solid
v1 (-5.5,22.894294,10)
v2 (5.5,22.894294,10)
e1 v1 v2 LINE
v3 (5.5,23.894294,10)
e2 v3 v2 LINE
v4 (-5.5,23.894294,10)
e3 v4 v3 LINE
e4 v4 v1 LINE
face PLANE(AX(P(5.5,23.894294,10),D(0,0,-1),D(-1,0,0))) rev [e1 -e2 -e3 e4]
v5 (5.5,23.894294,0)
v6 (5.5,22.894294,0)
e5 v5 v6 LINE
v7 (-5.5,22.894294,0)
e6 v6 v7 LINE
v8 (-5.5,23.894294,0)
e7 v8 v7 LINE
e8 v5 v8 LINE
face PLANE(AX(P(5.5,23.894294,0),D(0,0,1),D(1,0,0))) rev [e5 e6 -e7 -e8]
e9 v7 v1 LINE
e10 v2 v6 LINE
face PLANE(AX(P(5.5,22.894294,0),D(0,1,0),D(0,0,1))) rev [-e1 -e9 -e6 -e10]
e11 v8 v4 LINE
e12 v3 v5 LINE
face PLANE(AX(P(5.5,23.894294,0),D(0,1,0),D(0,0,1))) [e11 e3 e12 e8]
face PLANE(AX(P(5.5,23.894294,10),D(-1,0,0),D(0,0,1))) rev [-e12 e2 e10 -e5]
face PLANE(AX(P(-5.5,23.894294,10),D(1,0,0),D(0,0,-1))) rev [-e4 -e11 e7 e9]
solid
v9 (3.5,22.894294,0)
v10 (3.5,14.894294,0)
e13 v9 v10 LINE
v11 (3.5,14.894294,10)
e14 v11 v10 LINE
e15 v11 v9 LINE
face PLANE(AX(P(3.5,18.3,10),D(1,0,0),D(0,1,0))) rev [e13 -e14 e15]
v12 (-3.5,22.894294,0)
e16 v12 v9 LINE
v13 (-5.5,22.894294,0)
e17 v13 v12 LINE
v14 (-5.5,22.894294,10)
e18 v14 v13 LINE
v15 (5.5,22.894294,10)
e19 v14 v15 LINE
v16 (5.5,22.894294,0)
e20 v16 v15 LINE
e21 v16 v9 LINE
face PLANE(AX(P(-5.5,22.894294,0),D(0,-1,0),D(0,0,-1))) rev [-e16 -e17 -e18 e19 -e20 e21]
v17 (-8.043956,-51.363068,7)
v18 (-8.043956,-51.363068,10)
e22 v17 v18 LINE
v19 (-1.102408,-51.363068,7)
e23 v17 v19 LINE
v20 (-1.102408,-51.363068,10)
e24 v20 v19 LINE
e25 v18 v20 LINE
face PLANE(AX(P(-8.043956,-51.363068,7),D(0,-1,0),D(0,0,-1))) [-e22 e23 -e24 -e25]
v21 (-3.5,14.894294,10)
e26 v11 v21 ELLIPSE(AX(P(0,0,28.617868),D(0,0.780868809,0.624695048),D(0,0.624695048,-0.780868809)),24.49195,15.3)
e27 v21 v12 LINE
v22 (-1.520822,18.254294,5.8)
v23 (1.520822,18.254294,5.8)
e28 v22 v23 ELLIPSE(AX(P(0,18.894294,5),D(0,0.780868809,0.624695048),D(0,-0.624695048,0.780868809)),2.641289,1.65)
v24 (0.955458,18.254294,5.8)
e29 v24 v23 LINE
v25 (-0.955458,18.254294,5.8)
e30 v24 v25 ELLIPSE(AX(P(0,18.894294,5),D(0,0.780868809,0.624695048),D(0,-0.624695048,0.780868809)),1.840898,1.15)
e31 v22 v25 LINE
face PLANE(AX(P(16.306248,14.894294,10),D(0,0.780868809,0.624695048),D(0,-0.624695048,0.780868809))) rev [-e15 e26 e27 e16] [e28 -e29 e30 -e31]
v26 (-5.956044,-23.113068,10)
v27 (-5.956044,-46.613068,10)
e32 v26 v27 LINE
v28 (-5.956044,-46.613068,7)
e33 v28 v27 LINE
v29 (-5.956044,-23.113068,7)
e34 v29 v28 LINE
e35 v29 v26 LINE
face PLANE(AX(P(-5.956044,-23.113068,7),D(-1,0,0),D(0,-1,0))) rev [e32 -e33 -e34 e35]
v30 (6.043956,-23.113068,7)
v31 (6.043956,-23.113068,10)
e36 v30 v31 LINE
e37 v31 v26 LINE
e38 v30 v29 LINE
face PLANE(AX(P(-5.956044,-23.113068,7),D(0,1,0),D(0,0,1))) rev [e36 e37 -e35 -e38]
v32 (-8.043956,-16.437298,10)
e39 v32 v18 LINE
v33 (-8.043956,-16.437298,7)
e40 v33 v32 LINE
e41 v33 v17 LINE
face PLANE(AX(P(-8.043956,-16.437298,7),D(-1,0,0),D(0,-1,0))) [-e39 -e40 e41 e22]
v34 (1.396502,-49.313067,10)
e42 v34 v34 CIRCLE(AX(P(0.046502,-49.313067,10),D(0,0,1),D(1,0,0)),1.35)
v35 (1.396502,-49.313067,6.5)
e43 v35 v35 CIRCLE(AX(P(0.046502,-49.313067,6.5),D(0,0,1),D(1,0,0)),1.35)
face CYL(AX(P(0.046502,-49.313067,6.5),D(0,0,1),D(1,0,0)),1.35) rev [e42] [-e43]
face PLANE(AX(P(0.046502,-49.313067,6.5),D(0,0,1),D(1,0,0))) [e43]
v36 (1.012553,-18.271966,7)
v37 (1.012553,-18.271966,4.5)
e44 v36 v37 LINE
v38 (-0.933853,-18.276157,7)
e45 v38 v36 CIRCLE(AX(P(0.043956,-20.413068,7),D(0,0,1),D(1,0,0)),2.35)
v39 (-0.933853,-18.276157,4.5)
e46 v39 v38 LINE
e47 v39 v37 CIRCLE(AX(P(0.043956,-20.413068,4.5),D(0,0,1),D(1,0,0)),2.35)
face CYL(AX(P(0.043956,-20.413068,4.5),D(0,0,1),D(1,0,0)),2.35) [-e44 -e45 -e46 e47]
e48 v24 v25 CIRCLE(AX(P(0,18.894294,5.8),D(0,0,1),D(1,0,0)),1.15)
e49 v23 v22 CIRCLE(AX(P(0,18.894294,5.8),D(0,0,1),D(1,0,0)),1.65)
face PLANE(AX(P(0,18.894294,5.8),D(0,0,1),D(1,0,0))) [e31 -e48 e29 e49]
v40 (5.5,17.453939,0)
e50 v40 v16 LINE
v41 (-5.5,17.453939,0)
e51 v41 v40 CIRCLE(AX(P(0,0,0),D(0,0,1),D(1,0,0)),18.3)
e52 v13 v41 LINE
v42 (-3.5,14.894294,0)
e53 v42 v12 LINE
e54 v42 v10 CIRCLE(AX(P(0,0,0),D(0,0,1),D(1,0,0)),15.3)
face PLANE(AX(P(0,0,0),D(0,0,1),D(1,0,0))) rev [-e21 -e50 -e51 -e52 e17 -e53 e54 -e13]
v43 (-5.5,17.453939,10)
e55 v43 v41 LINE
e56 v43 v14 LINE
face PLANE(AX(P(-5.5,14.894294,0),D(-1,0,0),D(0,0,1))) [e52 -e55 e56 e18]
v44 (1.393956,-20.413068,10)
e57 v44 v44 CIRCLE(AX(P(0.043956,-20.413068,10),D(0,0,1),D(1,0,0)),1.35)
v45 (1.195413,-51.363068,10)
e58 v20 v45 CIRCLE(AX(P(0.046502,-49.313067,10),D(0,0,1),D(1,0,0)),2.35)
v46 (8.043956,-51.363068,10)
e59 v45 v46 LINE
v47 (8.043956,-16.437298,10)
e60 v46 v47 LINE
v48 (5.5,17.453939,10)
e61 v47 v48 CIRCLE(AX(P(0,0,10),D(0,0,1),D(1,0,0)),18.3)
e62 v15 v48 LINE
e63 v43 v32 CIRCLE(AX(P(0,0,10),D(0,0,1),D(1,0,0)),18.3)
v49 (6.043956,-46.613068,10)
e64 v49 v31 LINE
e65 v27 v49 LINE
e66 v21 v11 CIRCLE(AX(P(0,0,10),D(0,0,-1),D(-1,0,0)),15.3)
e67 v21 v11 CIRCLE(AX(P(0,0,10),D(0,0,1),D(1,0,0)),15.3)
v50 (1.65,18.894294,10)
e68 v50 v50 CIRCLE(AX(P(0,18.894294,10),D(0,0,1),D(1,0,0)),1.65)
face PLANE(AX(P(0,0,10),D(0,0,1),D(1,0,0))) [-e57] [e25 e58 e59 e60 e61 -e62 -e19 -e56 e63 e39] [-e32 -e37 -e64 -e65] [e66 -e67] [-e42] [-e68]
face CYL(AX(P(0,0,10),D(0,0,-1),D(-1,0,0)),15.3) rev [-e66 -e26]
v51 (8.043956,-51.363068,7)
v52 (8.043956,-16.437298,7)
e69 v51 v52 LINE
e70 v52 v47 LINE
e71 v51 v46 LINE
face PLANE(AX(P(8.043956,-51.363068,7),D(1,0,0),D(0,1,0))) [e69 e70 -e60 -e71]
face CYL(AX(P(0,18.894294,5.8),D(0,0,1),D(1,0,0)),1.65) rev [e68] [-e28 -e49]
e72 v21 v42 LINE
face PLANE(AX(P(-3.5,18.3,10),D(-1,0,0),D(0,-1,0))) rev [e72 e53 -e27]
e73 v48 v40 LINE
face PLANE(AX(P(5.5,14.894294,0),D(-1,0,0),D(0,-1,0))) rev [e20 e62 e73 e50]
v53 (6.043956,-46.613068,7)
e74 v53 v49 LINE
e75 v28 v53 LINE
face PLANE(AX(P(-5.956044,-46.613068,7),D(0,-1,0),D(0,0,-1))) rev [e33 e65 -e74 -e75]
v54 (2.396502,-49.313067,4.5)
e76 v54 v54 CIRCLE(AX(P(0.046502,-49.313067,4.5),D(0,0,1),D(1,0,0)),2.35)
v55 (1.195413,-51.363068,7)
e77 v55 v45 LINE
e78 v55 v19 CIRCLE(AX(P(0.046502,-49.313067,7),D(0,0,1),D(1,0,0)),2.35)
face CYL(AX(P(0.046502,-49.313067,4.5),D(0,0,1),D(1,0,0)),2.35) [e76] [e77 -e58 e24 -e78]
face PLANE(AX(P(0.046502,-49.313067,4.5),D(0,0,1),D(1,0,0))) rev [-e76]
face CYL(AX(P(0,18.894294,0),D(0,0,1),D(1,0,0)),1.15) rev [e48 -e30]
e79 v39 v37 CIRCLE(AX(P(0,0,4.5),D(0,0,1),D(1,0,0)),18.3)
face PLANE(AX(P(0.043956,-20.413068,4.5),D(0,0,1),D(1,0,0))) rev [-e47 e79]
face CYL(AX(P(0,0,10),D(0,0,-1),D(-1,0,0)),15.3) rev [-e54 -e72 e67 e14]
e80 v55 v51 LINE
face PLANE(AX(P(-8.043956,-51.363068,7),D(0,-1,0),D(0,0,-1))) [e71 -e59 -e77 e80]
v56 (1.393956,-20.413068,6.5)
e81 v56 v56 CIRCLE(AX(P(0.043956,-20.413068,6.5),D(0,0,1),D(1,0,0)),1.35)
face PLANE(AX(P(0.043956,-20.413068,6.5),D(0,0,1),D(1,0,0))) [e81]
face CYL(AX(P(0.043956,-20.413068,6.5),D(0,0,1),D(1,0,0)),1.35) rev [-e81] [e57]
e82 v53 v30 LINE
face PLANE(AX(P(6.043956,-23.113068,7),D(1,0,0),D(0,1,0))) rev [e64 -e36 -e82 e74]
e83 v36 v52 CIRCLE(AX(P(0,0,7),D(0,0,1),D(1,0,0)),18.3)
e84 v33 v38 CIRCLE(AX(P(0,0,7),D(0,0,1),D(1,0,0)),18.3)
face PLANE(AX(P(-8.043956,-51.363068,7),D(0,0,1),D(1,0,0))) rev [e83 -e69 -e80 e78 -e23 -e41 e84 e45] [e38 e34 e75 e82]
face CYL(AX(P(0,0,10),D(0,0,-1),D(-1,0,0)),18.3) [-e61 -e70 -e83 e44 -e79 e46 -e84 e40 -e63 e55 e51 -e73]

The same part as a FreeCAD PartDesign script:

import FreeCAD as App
import Part
import Sketcher

V = App.Vector
Q = App.Units.Quantity


def add_polygon(sketch, points):
    """Adds a closed chain of lines whose ends are joined by coincident constraints."""
    first, n = sketch.GeometryCount, len(points)
    for a, b in zip(points, points[1:] + points[:1]):
        sketch.addGeometry(Part.LineSegment(App.Vector(*a, 0), App.Vector(*b, 0)), False)
    for i in range(n):
        sketch.addConstraint(Sketcher.Constraint("Coincident", first + i, 2, first + (i + 1) % n, 1))

doc = App.newDocument("Part")
params = doc.addObject("Spreadsheet::Sheet", "Params")
for row, (alias, value) in enumerate([
    ("sketch1_diameter", "36.6 mm"),
    ("sketch1_diameter2", "30.6 mm"),
    ("pad1_length", "10 mm"),
    ("sketch2_width", "12 mm"),
    ("sketch2_height", "23.5 mm"),
    ("pad2_length", "3 mm"),
    ("sketch3_width", "7 mm"),
    ("sketch4_width", "7 mm"),
    ("sketch4_height", "8 mm"),
    ("pad3_length", "10 mm"),
    ("sketch5_width", "8 mm"),
    ("sketch5_height", "10 mm"),
    ("pocket2_length", "7 mm"),
    ("sketch6_width", "8 mm"),
    ("sketch6_height", "10 mm"),
    ("pad4_length", "2 mm"),
    ("sketch7_width", "8 mm"),
    ("sketch7_height", "10 mm"),
    ("pad5_length", "2 mm"),
    ("sketch8_diameter", "3.3 mm"),
    ("pocket3_length", "4.2 mm"),
    ("sketch9_diameter", "2.3 mm"),
    ("sketch10_diameter", "30.6 mm"),
    ("sketch11_diameter", "4.7 mm"),
    ("pad6_length", "5.5 mm"),
    ("sketch12_diameter", "2.7 mm"),
    ("pocket6_length", "3.5 mm"),
    ("sketch13_width", "11 mm"),
    ("sketch13_height", "10 mm"),
    ("pad7_length", "1 mm"),
], start=1):
    params.set(f"A{row}", alias)
    params.set(f"B{row}", "=" + value)
    params.setAlias(f"B{row}", alias)

body = doc.addObject("PartDesign::Body", "Body")

# Sketch on XY plane
sketch1 = body.newObject("Sketcher::SketchObject", "Sketch")
sketch1.AttachmentSupport = (doc.getObject("XY_Plane"), [""])
sketch1.MapMode = "FlatFace"
sketch1.addGeometry(Part.Circle(V(0, 0, 0), V(0, 0, 1), 18), False)
sketch1.addGeometry(Part.Circle(V(0, 0, 0), V(0, 0, 1), 15), False)
sketch1.addConstraint(Sketcher.Constraint("Coincident", 0, 3, -1, 1))
sketch1.addConstraint(Sketcher.Constraint("Coincident", 1, 3, -1, 1))
sketch1.addConstraint(Sketcher.Constraint("Diameter", 0, Q("36.6 mm")))
sketch1.addConstraint(Sketcher.Constraint("Diameter", 1, Q("30.6 mm")))
sketch1.setExpression("Constraints[2]", "Params.sketch1_diameter")
sketch1.setExpression("Constraints[3]", "Params.sketch1_diameter2")
pad1 = body.newObject("PartDesign::Pad", "Pad")
pad1.Profile = sketch1
pad1.setExpression("Length", "Params.pad1_length")

# Sketch on XY plane
sketch2 = body.newObject("Sketcher::SketchObject", "Sketch001")
sketch2.AttachmentSupport = (doc.getObject("XY_Plane"), [""])
sketch2.MapMode = "FlatFace"
sketch2.AttachmentOffset = App.Placement(V(0, 0, 10), App.Rotation())
add_polygon(sketch2, [(-8, -16), (-8, -51), (8, -51), (8, -16)])  # lines 0-3
add_polygon(sketch2, [(6, -47), (-6, -47), (-6, -23), (6, -23)])  # lines 4-7
sketch2.addConstraint(Sketcher.Constraint("Vertical", 0))
sketch2.addConstraint(Sketcher.Constraint("Horizontal", 1))
sketch2.addConstraint(Sketcher.Constraint("Vertical", 2))
sketch2.addConstraint(Sketcher.Constraint("Horizontal", 3))
sketch2.addConstraint(Sketcher.Constraint("Horizontal", 4))
sketch2.addConstraint(Sketcher.Constraint("Vertical", 5))
sketch2.addConstraint(Sketcher.Constraint("Horizontal", 6))
sketch2.addConstraint(Sketcher.Constraint("Vertical", 7))
sketch2.addConstraint(Sketcher.Constraint("DistanceX", 4, 2, 4, 1, Q("12 mm")))
sketch2.addConstraint(Sketcher.Constraint("DistanceY", 5, 1, 5, 2, Q("23.5 mm")))
sketch2.addConstraint(Sketcher.Constraint("DistanceX", 4, 2, 1, 2, Q("14 mm")))
sketch2.addConstraint(Sketcher.Constraint("DistanceY", 0, 2, 4, 2, Q("4.75 mm")))
sketch2.addConstraint(Sketcher.Constraint("DistanceY", 0, 2, 0, 1, Q("34.92577 mm")))
sketch2.addConstraint(Sketcher.Constraint("DistanceY", 2, 2, -1, 1, Q("16.437298 mm")))
sketch2.addConstraint(Sketcher.Constraint("DistanceX", 1, 1, 1, 2, Q("16.087912 mm")))
sketch2.addConstraint(Sketcher.Constraint("DistanceX", 0, 2, -1, 1, Q("8.043956 mm")))
sketch2.setExpression("Constraints[16]", "Params.sketch2_width")
sketch2.setExpression("Constraints[17]", "Params.sketch2_height")
pad2 = body.newObject("PartDesign::Pad", "Pad001")
pad2.Profile = sketch2
pad2.setExpression("Length", "Params.pad2_length")
pad2.Reversed = True

# Sketch on XY plane
sketch3 = body.newObject("Sketcher::SketchObject", "Sketch002")
sketch3.AttachmentSupport = (doc.getObject("XY_Plane"), [""])
sketch3.MapMode = "FlatFace"
add_polygon(sketch3, [(3.5, 18.3), (3.5, 14.9), (-3.5, 14.9), (-3.5, 18.3)])  # lines 0-3
sketch3.addConstraint(Sketcher.Constraint("Vertical", 0))
sketch3.addConstraint(Sketcher.Constraint("Horizontal", 1))
sketch3.addConstraint(Sketcher.Constraint("Vertical", 2))
sketch3.addConstraint(Sketcher.Constraint("Horizontal", 3))
sketch3.addConstraint(Sketcher.Constraint("DistanceX", 1, 2, 1, 1, Q("7 mm")))
sketch3.addConstraint(Sketcher.Constraint("DistanceX", -1, 1, 0, 2, Q("3.5 mm")))
sketch3.addConstraint(Sketcher.Constraint("DistanceY", -1, 1, 2, 2, Q("18.3 mm")))
sketch3.addConstraint(Sketcher.Constraint("DistanceY", 0, 2, 0, 1, Q("3.405706 mm")))
sketch3.setExpression("Constraints[8]", "Params.sketch3_width")
pocket1 = body.newObject("PartDesign::Pocket", "Pocket")
pocket1.Profile = sketch3
pocket1.Type = "ThroughAll"
pocket1.Reversed = True
body2 = doc.addObject("PartDesign::Body", "Body001")

# Sketch on XY plane
sketch4 = body2.newObject("Sketcher::SketchObject", "Sketch003")
sketch4.AttachmentSupport = (doc.getObject("XY_Plane001"), [""])
sketch4.MapMode = "FlatFace"
add_polygon(sketch4, [(4, 23), (4, 15), (-4, 15), (-4, 23)])  # lines 0-3
sketch4.addConstraint(Sketcher.Constraint("Vertical", 0))
sketch4.addConstraint(Sketcher.Constraint("Horizontal", 1))
sketch4.addConstraint(Sketcher.Constraint("Vertical", 2))
sketch4.addConstraint(Sketcher.Constraint("Horizontal", 3))
sketch4.addConstraint(Sketcher.Constraint("DistanceX", 1, 2, 1, 1, Q("7 mm")))
sketch4.addConstraint(Sketcher.Constraint("DistanceY", 0, 2, 0, 1, Q("8 mm")))
sketch4.addConstraint(Sketcher.Constraint("DistanceX", -1, 1, 0, 2, Q("3.5 mm")))
sketch4.addConstraint(Sketcher.Constraint("DistanceY", -1, 1, 0, 2, Q("14.894294 mm")))
sketch4.setExpression("Constraints[8]", "Params.sketch4_width")
sketch4.setExpression("Constraints[9]", "Params.sketch4_height")
pad3 = body2.newObject("PartDesign::Pad", "Pad002")
pad3.Profile = sketch4
pad3.setExpression("Length", "Params.pad3_length")

# Sketch on YZ plane
sketch5 = body2.newObject("Sketcher::SketchObject", "Sketch004")
sketch5.AttachmentSupport = (doc.getObject("YZ_Plane001"), [""])
sketch5.MapMode = "FlatFace"
sketch5.AttachmentOffset = App.Placement(V(0, 0, -3.5), App.Rotation())
add_polygon(sketch5, [(15, 10), (23, 0), (15, 0)])  # lines 0-2
sketch5.addConstraint(Sketcher.Constraint("Horizontal", 1))
sketch5.addConstraint(Sketcher.Constraint("Vertical", 2))
sketch5.addConstraint(Sketcher.Constraint("PointOnObject", 0, 2, -1))
sketch5.addConstraint(Sketcher.Constraint("DistanceX", 1, 2, 1, 1, Q("8 mm")))
sketch5.addConstraint(Sketcher.Constraint("DistanceY", 2, 1, 2, 2, Q("10 mm")))
sketch5.addConstraint(Sketcher.Constraint("DistanceX", -1, 1, 0, 2, Q("22.894294 mm")))
sketch5.setExpression("Constraints[6]", "Params.sketch5_width")
sketch5.setExpression("Constraints[7]", "Params.sketch5_height")
pocket2 = body2.newObject("PartDesign::Pocket", "Pocket001")
pocket2.Profile = sketch5
pocket2.setExpression("Length", "Params.pocket2_length")
pocket2.Reversed = True
doc.recompute()

boolean = body.newObject("PartDesign::Boolean", "Boolean")
boolean.Type = "Fuse"
boolean.addObjects([body2])

# Sketch on YZ plane
sketch6 = body.newObject("Sketcher::SketchObject", "Sketch005")
sketch6.AttachmentSupport = (doc.getObject("YZ_Plane"), [""])
sketch6.MapMode = "FlatFace"
sketch6.AttachmentOffset = App.Placement(V(0, 0, -3.5), App.Rotation())
add_polygon(sketch6, [(23, 0), (15, 0), (15, 10), (23, 10)])  # lines 0-3
sketch6.addConstraint(Sketcher.Constraint("Horizontal", 0))
sketch6.addConstraint(Sketcher.Constraint("Vertical", 1))
sketch6.addConstraint(Sketcher.Constraint("Horizontal", 2))
sketch6.addConstraint(Sketcher.Constraint("Vertical", 3))
sketch6.addConstraint(Sketcher.Constraint("PointOnObject", 0, 2, -1))
sketch6.addConstraint(Sketcher.Constraint("DistanceX", 0, 2, 0, 1, Q("8 mm")))
sketch6.addConstraint(Sketcher.Constraint("DistanceY", 1, 1, 1, 2, Q("10 mm")))
sketch6.addConstraint(Sketcher.Constraint("DistanceX", -1, 1, 0, 2, Q("14.894294 mm")))
sketch6.setExpression("Constraints[9]", "Params.sketch6_width")
sketch6.setExpression("Constraints[10]", "Params.sketch6_height")
pad4 = body.newObject("PartDesign::Pad", "Pad003")
pad4.Profile = sketch6
pad4.setExpression("Length", "Params.pad4_length")
pad4.Reversed = True

# Sketch on YZ plane
sketch7 = body.newObject("Sketcher::SketchObject", "Sketch006")
sketch7.AttachmentSupport = (doc.getObject("YZ_Plane"), [""])
sketch7.MapMode = "FlatFace"
sketch7.AttachmentOffset = App.Placement(V(0, 0, 3.5), App.Rotation())
add_polygon(sketch7, [(23, 10), (15, 10), (15, 0), (23, 0)])  # lines 0-3
sketch7.addConstraint(Sketcher.Constraint("Horizontal", 0))
sketch7.addConstraint(Sketcher.Constraint("Vertical", 1))
sketch7.addConstraint(Sketcher.Constraint("Horizontal", 2))
sketch7.addConstraint(Sketcher.Constraint("Vertical", 3))
sketch7.addConstraint(Sketcher.Constraint("PointOnObject", 1, 2, -1))
sketch7.addConstraint(Sketcher.Constraint("DistanceX", 0, 2, 0, 1, Q("8 mm")))
sketch7.addConstraint(Sketcher.Constraint("DistanceY", 1, 2, 1, 1, Q("10 mm")))
sketch7.addConstraint(Sketcher.Constraint("DistanceX", -1, 1, 0, 2, Q("14.894294 mm")))
sketch7.setExpression("Constraints[9]", "Params.sketch7_width")
sketch7.setExpression("Constraints[10]", "Params.sketch7_height")
pad5 = body.newObject("PartDesign::Pad", "Pad004")
pad5.Profile = sketch7
pad5.setExpression("Length", "Params.pad5_length")

# Sketch on XY plane
sketch8 = body.newObject("Sketcher::SketchObject", "Sketch007")
sketch8.AttachmentSupport = (doc.getObject("XY_Plane"), [""])
sketch8.MapMode = "FlatFace"
sketch8.AttachmentOffset = App.Placement(V(0, 0, 10), App.Rotation())
sketch8.addGeometry(Part.Circle(V(0, 18.9, 0), V(0, 0, 1), 1.6), False)
sketch8.addConstraint(Sketcher.Constraint("PointOnObject", 0, 3, -2))
sketch8.addConstraint(Sketcher.Constraint("Diameter", 0, Q("3.3 mm")))
sketch8.addConstraint(Sketcher.Constraint("DistanceY", -1, 1, 0, 3, Q("18.894294 mm")))
sketch8.setExpression("Constraints[1]", "Params.sketch8_diameter")
pocket3 = body.newObject("PartDesign::Pocket", "Pocket002")
pocket3.Profile = sketch8
pocket3.setExpression("Length", "Params.pocket3_length")

# Sketch on XY plane
sketch9 = body.newObject("Sketcher::SketchObject", "Sketch008")
sketch9.AttachmentSupport = (doc.getObject("XY_Plane"), [""])
sketch9.MapMode = "FlatFace"
sketch9.AttachmentOffset = App.Placement(V(0, 0, 5.8), App.Rotation())
sketch9.addGeometry(Part.Circle(V(0, 18.9, 0), V(0, 0, 1), 1.1), False)
sketch9.addConstraint(Sketcher.Constraint("PointOnObject", 0, 3, -2))
sketch9.addConstraint(Sketcher.Constraint("Diameter", 0, Q("2.3 mm")))
sketch9.addConstraint(Sketcher.Constraint("DistanceY", -1, 1, 0, 3, Q("18.894294 mm")))
sketch9.setExpression("Constraints[1]", "Params.sketch9_diameter")
pocket4 = body.newObject("PartDesign::Pocket", "Pocket003")
pocket4.Profile = sketch9
pocket4.Type = "ThroughAll"

# Sketch on XY plane
sketch10 = body.newObject("Sketcher::SketchObject", "Sketch009")
sketch10.AttachmentSupport = (doc.getObject("XY_Plane"), [""])
sketch10.MapMode = "FlatFace"
sketch10.addGeometry(Part.Circle(V(0, 0, 0), V(0, 0, 1), 15), False)
sketch10.addConstraint(Sketcher.Constraint("Coincident", 0, 3, -1, 1))
sketch10.addConstraint(Sketcher.Constraint("Diameter", 0, Q("30.6 mm")))
sketch10.setExpression("Constraints[1]", "Params.sketch10_diameter")
pocket5 = body.newObject("PartDesign::Pocket", "Pocket004")
pocket5.Profile = sketch10
pocket5.Type = "ThroughAll"
pocket5.Reversed = True

# Sketch on XY plane
sketch11 = body.newObject("Sketcher::SketchObject", "Sketch010")
sketch11.AttachmentSupport = (doc.getObject("XY_Plane"), [""])
sketch11.MapMode = "FlatFace"
sketch11.AttachmentOffset = App.Placement(V(0, 0, 10), App.Rotation())
sketch11.addGeometry(Part.Circle(V(0, -20.4, 0), V(0, 0, 1), 2.4), False)
sketch11.addGeometry(Part.Circle(V(0, -49.3, 0), V(0, 0, 1), 2.4), False)
sketch11.addConstraint(Sketcher.Constraint("Equal", 0, 1))
sketch11.addConstraint(Sketcher.Constraint("Diameter", 0, Q("4.7 mm")))
sketch11.addConstraint(Sketcher.Constraint("DistanceY", 1, 3, 0, 3, Q("28.899999 mm")))
sketch11.addConstraint(Sketcher.Constraint("DistanceY", 0, 3, -1, 1, Q("20.413068 mm")))
sketch11.addConstraint(Sketcher.Constraint("DistanceX", -1, 1, 0, 3, Q("0.043956 mm")))
sketch11.addConstraint(Sketcher.Constraint("DistanceX", -1, 1, 1, 3, Q("0.046502 mm")))
sketch11.setExpression("Constraints[1]", "Params.sketch11_diameter")
pad6 = body.newObject("PartDesign::Pad", "Pad005")
pad6.Profile = sketch11
pad6.setExpression("Length", "Params.pad6_length")
pad6.Reversed = True

# Sketch on XY plane
sketch12 = body.newObject("Sketcher::SketchObject", "Sketch011")
sketch12.AttachmentSupport = (doc.getObject("XY_Plane"), [""])
sketch12.MapMode = "FlatFace"
sketch12.AttachmentOffset = App.Placement(V(0, 0, 10), App.Rotation())
sketch12.addGeometry(Part.Circle(V(0, -49.3, 0), V(0, 0, 1), 1.4), False)
sketch12.addGeometry(Part.Circle(V(0, -20.4, 0), V(0, 0, 1), 1.4), False)
sketch12.addConstraint(Sketcher.Constraint("Equal", 0, 1))
sketch12.addConstraint(Sketcher.Constraint("Diameter", 0, Q("2.7 mm")))
sketch12.addConstraint(Sketcher.Constraint("DistanceY", 0, 3, 1, 3, Q("28.899999 mm")))
sketch12.addConstraint(Sketcher.Constraint("DistanceY", 1, 3, -1, 1, Q("20.413068 mm")))
sketch12.addConstraint(Sketcher.Constraint("DistanceX", -1, 1, 0, 3, Q("0.046502 mm")))
sketch12.addConstraint(Sketcher.Constraint("DistanceX", -1, 1, 1, 3, Q("0.043956 mm")))
sketch12.setExpression("Constraints[1]", "Params.sketch12_diameter")
pocket6 = body.newObject("PartDesign::Pocket", "Pocket005")
pocket6.Profile = sketch12
pocket6.setExpression("Length", "Params.pocket6_length")
body3 = doc.addObject("PartDesign::Body", "Body002")

# Sketch on XZ plane
sketch13 = body3.newObject("Sketcher::SketchObject", "Sketch012")
sketch13.AttachmentSupport = (doc.getObject("XZ_Plane002"), [""])
sketch13.MapMode = "FlatFace"
sketch13.AttachmentOffset = App.Placement(V(0, 0, -22.894294), App.Rotation())
add_polygon(sketch13, [(-6, 0), (-6, 10), (6, 10), (6, 0)])  # lines 0-3
sketch13.addConstraint(Sketcher.Constraint("Vertical", 0))
sketch13.addConstraint(Sketcher.Constraint("Horizontal", 1))
sketch13.addConstraint(Sketcher.Constraint("Vertical", 2))
sketch13.addConstraint(Sketcher.Constraint("Horizontal", 3))
sketch13.addConstraint(Sketcher.Constraint("Symmetric", 2, 2, 3, 2, -1, 1))
sketch13.addConstraint(Sketcher.Constraint("DistanceX", 1, 1, 1, 2, Q("11 mm")))
sketch13.addConstraint(Sketcher.Constraint("DistanceY", 0, 1, 0, 2, Q("10 mm")))
sketch13.setExpression("Constraints[9]", "Params.sketch13_width")
sketch13.setExpression("Constraints[10]", "Params.sketch13_height")
pad7 = body3.newObject("PartDesign::Pad", "Pad006")
pad7.Profile = sketch13
pad7.setExpression("Length", "Params.pad7_length")
pad7.Reversed = True

doc.recompute()
